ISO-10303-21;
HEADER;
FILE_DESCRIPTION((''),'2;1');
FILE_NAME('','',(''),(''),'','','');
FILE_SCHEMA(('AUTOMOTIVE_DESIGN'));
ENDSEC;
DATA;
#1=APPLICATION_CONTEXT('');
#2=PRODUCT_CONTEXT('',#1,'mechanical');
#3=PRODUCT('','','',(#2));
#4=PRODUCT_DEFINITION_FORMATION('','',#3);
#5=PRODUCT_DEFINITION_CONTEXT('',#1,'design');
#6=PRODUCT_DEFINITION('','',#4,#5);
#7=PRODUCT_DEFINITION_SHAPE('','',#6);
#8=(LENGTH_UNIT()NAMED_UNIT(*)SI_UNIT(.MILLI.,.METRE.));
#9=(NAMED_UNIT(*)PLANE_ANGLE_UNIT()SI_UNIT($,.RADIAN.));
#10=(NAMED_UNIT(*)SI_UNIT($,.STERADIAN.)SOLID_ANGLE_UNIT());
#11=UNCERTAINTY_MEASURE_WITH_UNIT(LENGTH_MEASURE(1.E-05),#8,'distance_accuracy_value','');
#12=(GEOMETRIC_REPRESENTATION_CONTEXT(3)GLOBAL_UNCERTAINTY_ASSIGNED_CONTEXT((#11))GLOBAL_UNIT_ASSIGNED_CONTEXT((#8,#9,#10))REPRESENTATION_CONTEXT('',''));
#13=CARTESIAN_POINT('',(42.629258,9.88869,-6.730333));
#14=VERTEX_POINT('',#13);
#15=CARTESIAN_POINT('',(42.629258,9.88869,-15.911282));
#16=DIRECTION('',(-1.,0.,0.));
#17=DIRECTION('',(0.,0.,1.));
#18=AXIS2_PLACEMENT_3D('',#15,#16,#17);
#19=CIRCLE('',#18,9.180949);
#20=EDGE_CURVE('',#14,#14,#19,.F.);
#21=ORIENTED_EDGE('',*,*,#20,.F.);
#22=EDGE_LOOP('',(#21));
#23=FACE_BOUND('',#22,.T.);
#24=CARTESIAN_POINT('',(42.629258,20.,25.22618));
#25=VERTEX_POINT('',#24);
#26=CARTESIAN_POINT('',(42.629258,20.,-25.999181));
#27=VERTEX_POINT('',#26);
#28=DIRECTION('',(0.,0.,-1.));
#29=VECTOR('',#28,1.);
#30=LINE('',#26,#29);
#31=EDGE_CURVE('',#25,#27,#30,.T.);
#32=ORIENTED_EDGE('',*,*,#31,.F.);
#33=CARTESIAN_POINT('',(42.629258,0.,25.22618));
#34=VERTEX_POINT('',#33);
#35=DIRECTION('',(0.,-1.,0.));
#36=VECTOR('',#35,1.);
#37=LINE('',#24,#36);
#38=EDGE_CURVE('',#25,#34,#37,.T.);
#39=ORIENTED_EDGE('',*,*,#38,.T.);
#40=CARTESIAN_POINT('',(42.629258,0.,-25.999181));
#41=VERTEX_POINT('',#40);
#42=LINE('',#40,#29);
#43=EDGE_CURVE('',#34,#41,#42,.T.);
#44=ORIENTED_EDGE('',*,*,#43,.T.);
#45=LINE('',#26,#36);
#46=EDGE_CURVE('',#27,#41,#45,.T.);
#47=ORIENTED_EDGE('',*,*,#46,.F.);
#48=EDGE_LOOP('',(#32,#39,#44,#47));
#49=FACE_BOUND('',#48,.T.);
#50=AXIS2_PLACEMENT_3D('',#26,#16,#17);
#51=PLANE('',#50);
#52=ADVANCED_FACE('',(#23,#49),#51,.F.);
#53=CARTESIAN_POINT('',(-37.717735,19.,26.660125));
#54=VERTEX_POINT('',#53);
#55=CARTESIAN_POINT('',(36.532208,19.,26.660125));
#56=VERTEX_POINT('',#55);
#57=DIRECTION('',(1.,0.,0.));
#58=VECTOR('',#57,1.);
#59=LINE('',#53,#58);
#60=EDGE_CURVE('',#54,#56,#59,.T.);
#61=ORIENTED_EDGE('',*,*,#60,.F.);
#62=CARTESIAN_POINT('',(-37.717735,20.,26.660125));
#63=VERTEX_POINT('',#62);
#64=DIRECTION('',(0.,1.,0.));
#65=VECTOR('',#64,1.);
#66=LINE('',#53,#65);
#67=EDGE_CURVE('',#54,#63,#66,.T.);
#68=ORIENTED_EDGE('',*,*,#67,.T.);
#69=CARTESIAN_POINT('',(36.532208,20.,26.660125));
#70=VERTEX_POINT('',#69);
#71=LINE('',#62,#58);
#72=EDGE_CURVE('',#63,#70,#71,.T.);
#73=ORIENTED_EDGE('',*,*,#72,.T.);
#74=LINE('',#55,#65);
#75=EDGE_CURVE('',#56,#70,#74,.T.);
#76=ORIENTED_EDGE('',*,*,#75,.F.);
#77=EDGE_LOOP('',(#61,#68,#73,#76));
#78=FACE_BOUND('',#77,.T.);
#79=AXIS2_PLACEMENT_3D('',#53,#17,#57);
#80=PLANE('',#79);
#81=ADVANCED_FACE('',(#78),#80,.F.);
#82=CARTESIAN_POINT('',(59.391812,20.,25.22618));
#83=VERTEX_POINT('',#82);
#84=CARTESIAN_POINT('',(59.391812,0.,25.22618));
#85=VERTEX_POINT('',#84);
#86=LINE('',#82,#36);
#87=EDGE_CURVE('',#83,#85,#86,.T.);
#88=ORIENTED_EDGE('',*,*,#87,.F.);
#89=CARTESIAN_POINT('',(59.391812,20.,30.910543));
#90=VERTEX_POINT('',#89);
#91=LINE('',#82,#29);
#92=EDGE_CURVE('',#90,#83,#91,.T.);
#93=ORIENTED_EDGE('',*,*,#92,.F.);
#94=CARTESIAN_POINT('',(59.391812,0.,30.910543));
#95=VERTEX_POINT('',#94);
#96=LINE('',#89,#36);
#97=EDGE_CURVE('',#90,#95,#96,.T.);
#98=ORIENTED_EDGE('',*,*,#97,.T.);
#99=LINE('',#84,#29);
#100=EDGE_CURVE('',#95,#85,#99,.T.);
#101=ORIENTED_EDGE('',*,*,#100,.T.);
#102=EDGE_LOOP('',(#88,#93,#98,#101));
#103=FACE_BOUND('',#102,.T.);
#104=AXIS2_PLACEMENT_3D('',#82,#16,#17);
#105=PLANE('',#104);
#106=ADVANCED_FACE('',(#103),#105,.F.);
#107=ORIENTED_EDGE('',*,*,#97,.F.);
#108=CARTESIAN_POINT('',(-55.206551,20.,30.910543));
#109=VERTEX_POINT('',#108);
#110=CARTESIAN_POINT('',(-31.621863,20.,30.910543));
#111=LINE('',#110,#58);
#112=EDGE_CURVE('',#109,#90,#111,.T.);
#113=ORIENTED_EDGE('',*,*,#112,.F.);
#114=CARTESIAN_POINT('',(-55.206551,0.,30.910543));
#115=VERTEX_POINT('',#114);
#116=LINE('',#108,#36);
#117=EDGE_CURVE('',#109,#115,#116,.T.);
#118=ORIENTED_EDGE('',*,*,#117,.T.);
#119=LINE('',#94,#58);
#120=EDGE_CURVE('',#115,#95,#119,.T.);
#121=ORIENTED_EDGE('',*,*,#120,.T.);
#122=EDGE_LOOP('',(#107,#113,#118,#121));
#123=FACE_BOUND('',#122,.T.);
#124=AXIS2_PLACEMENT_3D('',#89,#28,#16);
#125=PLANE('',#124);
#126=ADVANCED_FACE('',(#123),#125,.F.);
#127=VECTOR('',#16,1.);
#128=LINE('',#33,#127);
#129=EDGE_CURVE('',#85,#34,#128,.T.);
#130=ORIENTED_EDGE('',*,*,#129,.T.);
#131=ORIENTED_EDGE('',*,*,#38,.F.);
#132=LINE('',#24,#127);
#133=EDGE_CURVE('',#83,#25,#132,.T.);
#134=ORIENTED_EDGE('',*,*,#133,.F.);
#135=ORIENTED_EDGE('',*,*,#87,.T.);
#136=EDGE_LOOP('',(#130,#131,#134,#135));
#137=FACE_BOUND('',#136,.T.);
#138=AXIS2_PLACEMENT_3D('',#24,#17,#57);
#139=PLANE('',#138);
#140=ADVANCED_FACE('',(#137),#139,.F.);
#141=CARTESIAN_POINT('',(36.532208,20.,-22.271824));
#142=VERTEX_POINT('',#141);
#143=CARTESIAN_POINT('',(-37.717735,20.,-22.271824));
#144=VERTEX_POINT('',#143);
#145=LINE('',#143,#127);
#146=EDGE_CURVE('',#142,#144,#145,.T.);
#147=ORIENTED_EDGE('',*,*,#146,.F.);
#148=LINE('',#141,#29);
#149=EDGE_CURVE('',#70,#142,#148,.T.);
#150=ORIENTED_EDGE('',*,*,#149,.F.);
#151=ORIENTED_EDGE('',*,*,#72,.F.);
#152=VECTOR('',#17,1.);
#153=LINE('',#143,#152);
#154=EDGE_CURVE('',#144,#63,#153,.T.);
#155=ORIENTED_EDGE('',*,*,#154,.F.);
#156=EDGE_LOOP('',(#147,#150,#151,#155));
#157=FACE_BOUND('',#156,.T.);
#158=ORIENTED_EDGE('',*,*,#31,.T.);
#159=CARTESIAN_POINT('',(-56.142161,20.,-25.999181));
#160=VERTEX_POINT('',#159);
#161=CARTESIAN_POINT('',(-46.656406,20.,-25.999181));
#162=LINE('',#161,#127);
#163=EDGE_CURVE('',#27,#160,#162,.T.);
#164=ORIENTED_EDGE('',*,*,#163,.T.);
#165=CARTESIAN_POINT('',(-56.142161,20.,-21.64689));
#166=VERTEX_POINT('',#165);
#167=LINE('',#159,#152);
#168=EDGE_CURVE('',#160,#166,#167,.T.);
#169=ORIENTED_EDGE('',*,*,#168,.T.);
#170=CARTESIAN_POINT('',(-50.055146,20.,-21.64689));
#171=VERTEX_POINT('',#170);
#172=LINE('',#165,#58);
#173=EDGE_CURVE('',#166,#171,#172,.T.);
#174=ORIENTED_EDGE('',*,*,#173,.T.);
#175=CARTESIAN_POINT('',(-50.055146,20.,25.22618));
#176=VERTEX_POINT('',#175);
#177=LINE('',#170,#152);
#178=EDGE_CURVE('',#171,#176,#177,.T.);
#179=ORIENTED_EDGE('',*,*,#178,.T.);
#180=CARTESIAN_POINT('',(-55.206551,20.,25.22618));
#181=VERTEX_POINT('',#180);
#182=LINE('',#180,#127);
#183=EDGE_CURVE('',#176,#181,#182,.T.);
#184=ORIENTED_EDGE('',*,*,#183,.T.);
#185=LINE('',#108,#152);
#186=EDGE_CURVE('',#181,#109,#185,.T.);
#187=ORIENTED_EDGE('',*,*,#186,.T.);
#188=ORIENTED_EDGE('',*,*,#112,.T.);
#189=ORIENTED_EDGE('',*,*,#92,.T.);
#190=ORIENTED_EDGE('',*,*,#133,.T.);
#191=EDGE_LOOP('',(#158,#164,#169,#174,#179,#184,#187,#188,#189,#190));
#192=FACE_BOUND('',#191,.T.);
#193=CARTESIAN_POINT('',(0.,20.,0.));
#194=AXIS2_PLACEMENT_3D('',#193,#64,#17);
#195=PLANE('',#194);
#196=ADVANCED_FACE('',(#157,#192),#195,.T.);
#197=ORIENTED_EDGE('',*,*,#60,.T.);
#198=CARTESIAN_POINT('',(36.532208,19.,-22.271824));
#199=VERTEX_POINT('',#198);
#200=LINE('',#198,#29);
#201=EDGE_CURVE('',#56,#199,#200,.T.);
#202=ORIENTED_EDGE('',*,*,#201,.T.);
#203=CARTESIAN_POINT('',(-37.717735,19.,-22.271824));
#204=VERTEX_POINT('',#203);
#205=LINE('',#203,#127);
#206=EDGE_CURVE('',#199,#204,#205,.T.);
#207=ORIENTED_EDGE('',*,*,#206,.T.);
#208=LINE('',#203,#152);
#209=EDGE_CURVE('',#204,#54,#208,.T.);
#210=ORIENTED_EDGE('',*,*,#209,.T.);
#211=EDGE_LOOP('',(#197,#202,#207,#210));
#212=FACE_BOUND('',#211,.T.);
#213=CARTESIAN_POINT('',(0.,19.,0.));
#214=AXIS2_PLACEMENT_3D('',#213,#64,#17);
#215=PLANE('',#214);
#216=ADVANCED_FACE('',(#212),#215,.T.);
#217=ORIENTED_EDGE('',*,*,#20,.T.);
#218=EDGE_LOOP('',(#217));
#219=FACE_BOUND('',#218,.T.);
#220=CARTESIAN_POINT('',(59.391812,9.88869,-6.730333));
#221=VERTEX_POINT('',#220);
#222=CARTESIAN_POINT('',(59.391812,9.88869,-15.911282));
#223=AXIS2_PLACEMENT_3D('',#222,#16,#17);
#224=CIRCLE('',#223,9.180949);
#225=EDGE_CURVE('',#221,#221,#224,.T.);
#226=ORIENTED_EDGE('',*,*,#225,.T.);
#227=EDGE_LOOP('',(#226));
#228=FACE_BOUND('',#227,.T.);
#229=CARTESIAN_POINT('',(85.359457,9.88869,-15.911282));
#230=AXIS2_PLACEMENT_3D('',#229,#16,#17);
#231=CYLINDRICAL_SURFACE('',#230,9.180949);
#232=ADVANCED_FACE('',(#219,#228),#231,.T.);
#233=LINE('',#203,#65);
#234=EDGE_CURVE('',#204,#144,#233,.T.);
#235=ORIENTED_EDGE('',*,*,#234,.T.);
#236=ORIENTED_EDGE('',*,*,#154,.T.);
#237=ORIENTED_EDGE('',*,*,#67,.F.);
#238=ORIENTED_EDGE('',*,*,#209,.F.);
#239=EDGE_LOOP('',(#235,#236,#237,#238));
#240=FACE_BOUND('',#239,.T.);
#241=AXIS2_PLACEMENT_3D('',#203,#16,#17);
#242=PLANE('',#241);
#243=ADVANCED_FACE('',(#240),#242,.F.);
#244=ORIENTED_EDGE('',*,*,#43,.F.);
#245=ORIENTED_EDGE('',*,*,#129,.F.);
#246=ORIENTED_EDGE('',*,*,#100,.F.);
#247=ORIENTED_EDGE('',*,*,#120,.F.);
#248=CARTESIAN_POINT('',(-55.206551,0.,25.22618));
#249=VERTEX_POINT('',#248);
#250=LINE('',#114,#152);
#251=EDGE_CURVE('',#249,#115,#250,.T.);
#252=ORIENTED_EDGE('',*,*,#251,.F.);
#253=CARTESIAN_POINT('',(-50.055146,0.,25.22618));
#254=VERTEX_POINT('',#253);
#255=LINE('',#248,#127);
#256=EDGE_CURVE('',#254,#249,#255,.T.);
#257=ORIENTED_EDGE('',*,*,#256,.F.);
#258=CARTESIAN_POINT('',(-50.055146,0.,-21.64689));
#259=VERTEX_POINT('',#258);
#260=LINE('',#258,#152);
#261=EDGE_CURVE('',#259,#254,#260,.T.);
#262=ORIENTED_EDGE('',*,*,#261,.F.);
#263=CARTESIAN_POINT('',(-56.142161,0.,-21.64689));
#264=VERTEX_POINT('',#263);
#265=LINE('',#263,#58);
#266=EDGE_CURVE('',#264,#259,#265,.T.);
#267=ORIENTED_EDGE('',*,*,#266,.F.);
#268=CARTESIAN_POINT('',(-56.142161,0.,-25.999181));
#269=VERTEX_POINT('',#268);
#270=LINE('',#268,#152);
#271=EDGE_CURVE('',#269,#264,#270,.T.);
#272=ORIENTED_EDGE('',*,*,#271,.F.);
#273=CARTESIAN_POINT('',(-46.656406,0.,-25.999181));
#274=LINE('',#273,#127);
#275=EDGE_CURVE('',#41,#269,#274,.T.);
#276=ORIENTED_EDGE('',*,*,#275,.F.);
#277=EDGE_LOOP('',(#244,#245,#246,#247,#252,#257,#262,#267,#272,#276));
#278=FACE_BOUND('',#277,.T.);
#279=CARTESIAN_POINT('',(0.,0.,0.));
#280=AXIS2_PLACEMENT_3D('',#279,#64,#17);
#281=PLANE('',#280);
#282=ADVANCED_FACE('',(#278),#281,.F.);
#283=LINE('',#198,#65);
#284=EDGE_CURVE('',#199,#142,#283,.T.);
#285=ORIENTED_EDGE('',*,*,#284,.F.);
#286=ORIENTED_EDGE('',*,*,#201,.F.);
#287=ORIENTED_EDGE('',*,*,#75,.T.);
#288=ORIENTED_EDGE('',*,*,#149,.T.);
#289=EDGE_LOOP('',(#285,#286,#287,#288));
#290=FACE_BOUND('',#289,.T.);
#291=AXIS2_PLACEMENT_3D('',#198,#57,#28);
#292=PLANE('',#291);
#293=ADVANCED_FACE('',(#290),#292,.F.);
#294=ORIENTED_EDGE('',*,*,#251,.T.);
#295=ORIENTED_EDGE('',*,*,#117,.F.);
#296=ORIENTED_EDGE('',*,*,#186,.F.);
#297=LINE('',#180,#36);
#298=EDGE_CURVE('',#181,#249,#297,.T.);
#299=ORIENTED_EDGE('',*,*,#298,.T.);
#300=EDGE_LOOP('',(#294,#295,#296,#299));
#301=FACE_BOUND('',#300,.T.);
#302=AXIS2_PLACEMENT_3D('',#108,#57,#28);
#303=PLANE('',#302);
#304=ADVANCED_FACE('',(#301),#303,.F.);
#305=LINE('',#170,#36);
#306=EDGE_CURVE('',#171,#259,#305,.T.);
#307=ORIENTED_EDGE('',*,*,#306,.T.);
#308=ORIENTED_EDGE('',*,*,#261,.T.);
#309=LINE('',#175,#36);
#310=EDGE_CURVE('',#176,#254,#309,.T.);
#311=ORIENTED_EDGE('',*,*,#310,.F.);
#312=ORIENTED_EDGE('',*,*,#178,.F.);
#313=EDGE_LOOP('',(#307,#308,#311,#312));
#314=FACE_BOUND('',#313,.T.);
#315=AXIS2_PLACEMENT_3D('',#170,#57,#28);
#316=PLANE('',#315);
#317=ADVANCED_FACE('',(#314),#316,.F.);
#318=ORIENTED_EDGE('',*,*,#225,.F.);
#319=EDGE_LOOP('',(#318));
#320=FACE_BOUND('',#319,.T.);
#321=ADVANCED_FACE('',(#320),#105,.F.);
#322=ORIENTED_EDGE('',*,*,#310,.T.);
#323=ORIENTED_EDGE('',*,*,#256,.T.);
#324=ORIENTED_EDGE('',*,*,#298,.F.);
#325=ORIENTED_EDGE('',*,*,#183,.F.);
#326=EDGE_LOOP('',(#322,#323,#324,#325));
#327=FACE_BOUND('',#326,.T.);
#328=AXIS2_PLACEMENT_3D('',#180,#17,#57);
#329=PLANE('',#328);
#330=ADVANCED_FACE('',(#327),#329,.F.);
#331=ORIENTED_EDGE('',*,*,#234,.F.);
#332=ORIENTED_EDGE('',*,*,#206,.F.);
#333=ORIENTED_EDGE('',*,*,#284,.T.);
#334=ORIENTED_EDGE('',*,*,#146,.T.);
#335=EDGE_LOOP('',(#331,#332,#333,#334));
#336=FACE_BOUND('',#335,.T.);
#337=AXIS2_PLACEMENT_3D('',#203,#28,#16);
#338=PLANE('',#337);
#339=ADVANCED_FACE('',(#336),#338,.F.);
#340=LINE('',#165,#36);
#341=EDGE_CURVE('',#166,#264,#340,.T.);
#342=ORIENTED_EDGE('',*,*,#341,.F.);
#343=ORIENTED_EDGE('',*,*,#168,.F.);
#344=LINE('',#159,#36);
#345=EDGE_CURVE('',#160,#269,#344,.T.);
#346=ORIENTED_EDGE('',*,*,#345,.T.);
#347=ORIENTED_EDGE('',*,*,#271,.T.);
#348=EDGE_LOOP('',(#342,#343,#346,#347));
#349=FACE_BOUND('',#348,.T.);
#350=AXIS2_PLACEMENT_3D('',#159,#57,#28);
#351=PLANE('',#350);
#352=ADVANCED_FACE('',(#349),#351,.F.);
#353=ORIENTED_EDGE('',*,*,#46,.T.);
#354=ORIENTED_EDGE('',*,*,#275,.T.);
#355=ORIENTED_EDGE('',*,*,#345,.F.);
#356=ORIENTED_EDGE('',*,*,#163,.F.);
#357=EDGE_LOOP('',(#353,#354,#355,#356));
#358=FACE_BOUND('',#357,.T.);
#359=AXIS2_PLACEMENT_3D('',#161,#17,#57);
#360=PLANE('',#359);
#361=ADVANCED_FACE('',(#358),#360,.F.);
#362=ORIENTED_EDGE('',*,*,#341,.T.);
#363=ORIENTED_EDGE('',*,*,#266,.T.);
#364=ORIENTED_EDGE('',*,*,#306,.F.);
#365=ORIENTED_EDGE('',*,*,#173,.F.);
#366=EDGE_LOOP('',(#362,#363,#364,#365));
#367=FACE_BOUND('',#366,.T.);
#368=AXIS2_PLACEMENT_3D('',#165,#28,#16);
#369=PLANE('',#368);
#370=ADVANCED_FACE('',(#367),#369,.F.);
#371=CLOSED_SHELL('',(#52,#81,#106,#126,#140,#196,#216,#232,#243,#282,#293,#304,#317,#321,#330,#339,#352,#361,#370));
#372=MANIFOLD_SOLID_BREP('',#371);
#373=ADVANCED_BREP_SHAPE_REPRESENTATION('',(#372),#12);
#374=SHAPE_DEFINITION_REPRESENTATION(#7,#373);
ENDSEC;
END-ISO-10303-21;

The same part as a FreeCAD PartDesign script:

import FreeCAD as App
import Part
import Sketcher
Q = App.Units.Quantity

doc = App.newDocument("Part")
body = doc.addObject("PartDesign::Body", "Body")

# Sketch on XZ plane
sketch1 = body.newObject("Sketcher::SketchObject", "Sketch")
sketch1.AttachmentSupport = (doc.getObject("XZ_Plane"), [""])
sketch1.MapMode = "FlatFace"
sketch1.addGeometry([
    Part.LineSegment(App.Vector(-50.1, -21.6, 0), App.Vector(-50.1, 25.2, 0)),  # 0
    Part.LineSegment(App.Vector(-50.1, 25.2, 0), App.Vector(-55.2, 25.2, 0)),  # 1
    Part.LineSegment(App.Vector(-55.2, 25.2, 0), App.Vector(-55.2, 30.9, 0)),  # 2
    Part.LineSegment(App.Vector(-55.2, 30.9, 0), App.Vector(59.4, 30.9, 0)),  # 3
    Part.LineSegment(App.Vector(59.4, 30.9, 0), App.Vector(59.4, 25.2, 0)),  # 4
    Part.LineSegment(App.Vector(59.4, 25.2, 0), App.Vector(42.6, 25.2, 0)),  # 5
    Part.LineSegment(App.Vector(42.6, 25.2, 0), App.Vector(42.6, -26, 0)),  # 6
    Part.LineSegment(App.Vector(42.6, -26, 0), App.Vector(-56.1, -26, 0)),  # 7
    Part.LineSegment(App.Vector(-56.1, -26, 0), App.Vector(-56.1, -21.6, 0)),  # 8
    Part.LineSegment(App.Vector(-56.1, -21.6, 0), App.Vector(-50.1, -21.6, 0)),  # 9
], False)
sketch1.addConstraint([
    Sketcher.Constraint("Coincident", 0, 2, 1, 1),
    Sketcher.Constraint("Coincident", 1, 2, 2, 1),
    Sketcher.Constraint("Coincident", 2, 2, 3, 1),
    Sketcher.Constraint("Coincident", 3, 2, 4, 1),
    Sketcher.Constraint("Coincident", 4, 2, 5, 1),
    Sketcher.Constraint("Coincident", 5, 2, 6, 1),
    Sketcher.Constraint("Coincident", 6, 2, 7, 1),
    Sketcher.Constraint("Coincident", 7, 2, 8, 1),
    Sketcher.Constraint("Coincident", 8, 2, 9, 1),
    Sketcher.Constraint("Coincident", 9, 2, 0, 1),
    Sketcher.Constraint("Vertical", 0),
    Sketcher.Constraint("Horizontal", 1),
    Sketcher.Constraint("Vertical", 2),
    Sketcher.Constraint("Horizontal", 3),
    Sketcher.Constraint("Vertical", 4),
    Sketcher.Constraint("Horizontal", 5),
    Sketcher.Constraint("Vertical", 6),
    Sketcher.Constraint("Horizontal", 7),
    Sketcher.Constraint("Vertical", 8),
    Sketcher.Constraint("Horizontal", 9),
    Sketcher.Constraint("Horizontal", 1, 2, 4, 2),
    Sketcher.Constraint("DistanceX", 7, 2, 7, 1, Q("98.771419 mm")),
    Sketcher.Constraint("DistanceY", 0, 1, 0, 2, Q("46.87307 mm")),
    Sketcher.Constraint("DistanceY", 6, 2, 6, 1, Q("51.225361 mm")),
    Sketcher.Constraint("DistanceX", 1, 2, 1, 1, Q("5.151405 mm")),
    Sketcher.Constraint("DistanceX", 3, 1, 3, 2, Q("114.598363 mm")),
    Sketcher.Constraint("DistanceX", 5, 2, 5, 1, Q("16.762555 mm")),
    Sketcher.Constraint("DistanceY", 2, 1, 2, 2, Q("5.684363 mm")),
    Sketcher.Constraint("DistanceY", -1, 1, 0, 2, Q("25.22618 mm")),
    Sketcher.Constraint("DistanceX", 1, 2, -1, 1, Q("55.206551 mm")),
])
pad1 = body.newObject("PartDesign::Pad", "Pad")
pad1.Profile = sketch1
pad1.Length = 20
pad1.Reversed = True

# Sketch on YZ plane
sketch2 = body.newObject("Sketcher::SketchObject", "Sketch001")
sketch2.AttachmentSupport = (doc.getObject("YZ_Plane"), [""])
sketch2.MapMode = "FlatFace"
sketch2.AttachmentOffset = App.Placement(App.Vector(0, 0, 42.629258), App.Rotation())
sketch2.addGeometry(Part.Circle(App.Vector(10, -16, 0), App.Vector(0, 0, 1), 9), False)
sketch2.addConstraint([
    Sketcher.Constraint("Diameter", 0, Q("18.361898 mm")),
    Sketcher.Constraint("DistanceX", -1, 1, 0, 3, Q("9.88869 mm")),
    Sketcher.Constraint("DistanceY", 0, 3, -1, 1, Q("15.911282 mm")),
])
pad2 = body.newObject("PartDesign::Pad", "Pad001")
pad2.Profile = sketch2
pad2.Length = 16.762555

# Sketch on XZ plane
sketch3 = body.newObject("Sketcher::SketchObject", "Sketch002")
sketch3.AttachmentSupport = (doc.getObject("XZ_Plane"), [""])
sketch3.MapMode = "FlatFace"
sketch3.AttachmentOffset = App.Placement(App.Vector(0, 0, -20), App.Rotation())
sketch3.addGeometry([
    Part.LineSegment(App.Vector(-38, -22, 0), App.Vector(-38, 27, 0)),
    Part.LineSegment(App.Vector(-38, 27, 0), App.Vector(37, 27, 0)),
    Part.LineSegment(App.Vector(37, 27, 0), App.Vector(37, -22, 0)),
    Part.LineSegment(App.Vector(37, -22, 0), App.Vector(-38, -22, 0)),
], False)
sketch3.addConstraint([
    Sketcher.Constraint("Coincident", 0, 2, 1, 1),
    Sketcher.Constraint("Coincident", 1, 2, 2, 1),
    Sketcher.Constraint("Coincident", 2, 2, 3, 1),
    Sketcher.Constraint("Coincident", 3, 2, 0, 1),
    Sketcher.Constraint("Vertical", 0),
    Sketcher.Constraint("Horizontal", 1),
    Sketcher.Constraint("Vertical", 2),
    Sketcher.Constraint("Horizontal", 3),
    Sketcher.Constraint("DistanceY", 0, 1, 0, 2, Q("48.931949 mm")),
    Sketcher.Constraint("DistanceX", 1, 1, 1, 2, Q("74.249943 mm")),
    Sketcher.Constraint("DistanceX", -1, 1, 1, 2, Q("36.532208 mm")),
    Sketcher.Constraint("DistanceY", -1, 1, 0, 2, Q("26.660125 mm")),
])
pocket1 = body.newObject("PartDesign::Pocket", "Pocket")
pocket1.Profile = sketch3
pocket1.Length = 1
pocket1.Reversed = True

doc.recompute()
